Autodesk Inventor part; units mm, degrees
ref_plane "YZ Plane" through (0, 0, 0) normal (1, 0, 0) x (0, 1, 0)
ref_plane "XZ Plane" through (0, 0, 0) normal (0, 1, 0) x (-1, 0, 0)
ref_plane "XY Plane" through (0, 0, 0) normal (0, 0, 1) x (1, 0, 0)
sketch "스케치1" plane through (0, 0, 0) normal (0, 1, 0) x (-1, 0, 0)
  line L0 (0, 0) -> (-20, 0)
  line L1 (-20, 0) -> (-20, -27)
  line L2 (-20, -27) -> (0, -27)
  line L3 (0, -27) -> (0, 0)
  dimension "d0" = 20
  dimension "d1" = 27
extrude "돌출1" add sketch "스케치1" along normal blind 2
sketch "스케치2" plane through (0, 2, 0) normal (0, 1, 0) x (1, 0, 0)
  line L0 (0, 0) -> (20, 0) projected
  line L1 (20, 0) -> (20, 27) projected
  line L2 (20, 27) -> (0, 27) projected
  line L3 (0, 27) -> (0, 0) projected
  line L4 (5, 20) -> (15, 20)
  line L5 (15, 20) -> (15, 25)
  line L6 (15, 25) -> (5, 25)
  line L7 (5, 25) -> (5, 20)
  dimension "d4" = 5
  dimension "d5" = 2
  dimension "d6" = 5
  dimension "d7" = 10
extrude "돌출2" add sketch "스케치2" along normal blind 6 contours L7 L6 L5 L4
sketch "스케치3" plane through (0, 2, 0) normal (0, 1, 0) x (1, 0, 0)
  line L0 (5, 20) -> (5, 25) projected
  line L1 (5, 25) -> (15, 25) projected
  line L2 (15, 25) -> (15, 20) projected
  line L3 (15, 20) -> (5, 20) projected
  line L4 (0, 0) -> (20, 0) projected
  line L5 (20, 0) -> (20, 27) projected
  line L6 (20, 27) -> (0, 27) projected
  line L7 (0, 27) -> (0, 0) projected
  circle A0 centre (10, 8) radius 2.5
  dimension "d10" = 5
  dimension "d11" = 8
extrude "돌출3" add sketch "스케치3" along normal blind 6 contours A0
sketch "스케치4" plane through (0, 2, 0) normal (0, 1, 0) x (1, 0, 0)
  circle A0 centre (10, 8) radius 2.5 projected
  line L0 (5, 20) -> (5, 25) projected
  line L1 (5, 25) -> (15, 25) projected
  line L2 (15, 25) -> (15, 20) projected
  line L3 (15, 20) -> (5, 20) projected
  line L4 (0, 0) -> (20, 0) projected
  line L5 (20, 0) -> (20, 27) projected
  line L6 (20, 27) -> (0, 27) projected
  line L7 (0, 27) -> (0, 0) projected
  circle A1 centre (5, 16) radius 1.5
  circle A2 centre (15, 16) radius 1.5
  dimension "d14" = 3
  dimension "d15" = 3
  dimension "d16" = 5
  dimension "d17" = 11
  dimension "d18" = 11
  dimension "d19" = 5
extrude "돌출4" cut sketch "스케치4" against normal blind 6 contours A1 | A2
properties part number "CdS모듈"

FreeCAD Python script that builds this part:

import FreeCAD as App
import Part
import Sketcher
Q = App.Units.Quantity

doc = App.newDocument("Part")
params = doc.addObject("Spreadsheet::Sheet", "Params")
for row, (alias, value) in enumerate([
    ("sketch1_width", "20 mm"),
    ("sketch1_height", "27 mm"),
    ("pad1_length", "2 mm"),
    ("sketch2_width", "10 mm"),
    ("sketch2_height", "5 mm"),
    ("pad2_length", "6 mm"),
    ("sketch3_diameter", "5 mm"),
    ("pad3_length", "6 mm"),
    ("sketch4_diameter", "3 mm"),
    ("pocket1_length", "6 mm"),
], start=1):
    params.set(f"A{row}", alias)
    params.set(f"B{row}", "=" + value)
    params.setAlias(f"B{row}", alias)

body = doc.addObject("PartDesign::Body", "Body")

# Sketch on XZ plane
sketch1 = body.newObject("Sketcher::SketchObject", "Sketch")
sketch1.AttachmentSupport = (doc.getObject("XZ_Plane"), [""])
sketch1.MapMode = "FlatFace"
sketch1.addGeometry(Part.LineSegment(App.Vector(0, -27, 0), App.Vector(0, 0, 0)), False)
sketch1.addGeometry(Part.LineSegment(App.Vector(0, 0, 0), App.Vector(20, 0, 0)), False)
sketch1.addGeometry(Part.LineSegment(App.Vector(20, 0, 0), App.Vector(20, -27, 0)), False)
sketch1.addGeometry(Part.LineSegment(App.Vector(20, -27, 0), App.Vector(0, -27, 0)), False)
sketch1.addConstraint(Sketcher.Constraint("Coincident", 0, 2, 1, 1))
sketch1.addConstraint(Sketcher.Constraint("Coincident", 1, 2, 2, 1))
sketch1.addConstraint(Sketcher.Constraint("Coincident", 2, 2, 3, 1))
sketch1.addConstraint(Sketcher.Constraint("Coincident", 3, 2, 0, 1))
sketch1.addConstraint(Sketcher.Constraint("Vertical", 0))
sketch1.addConstraint(Sketcher.Constraint("Horizontal", 1))
sketch1.addConstraint(Sketcher.Constraint("Vertical", 2))
sketch1.addConstraint(Sketcher.Constraint("Horizontal", 3))
sketch1.addConstraint(Sketcher.Constraint("Coincident", 0, 2, -1, 1))
sketch1.addConstraint(Sketcher.Constraint("DistanceX", 1, 1, 1, 2, Q("20 mm")))
sketch1.addConstraint(Sketcher.Constraint("DistanceY", 0, 1, 0, 2, Q("27 mm")))
sketch1.setExpression("Constraints[9]", "Params.sketch1_width")
sketch1.setExpression("Constraints[10]", "Params.sketch1_height")
pad1 = body.newObject("PartDesign::Pad", "Pad")
pad1.Profile = sketch1
pad1.setExpression("Length", "Params.pad1_length")
pad1.Reversed = True

# Sketch on XZ plane
sketch2 = body.newObject("Sketcher::SketchObject", "Sketch001")
sketch2.AttachmentSupport = (doc.getObject("XZ_Plane"), [""])
sketch2.MapMode = "FlatFace"
sketch2.AttachmentOffset = App.Placement(App.Vector(0, 0, -2), App.Rotation())
sketch2.addGeometry(Part.LineSegment(App.Vector(5, -25, 0), App.Vector(5, -20, 0)), False)
sketch2.addGeometry(Part.LineSegment(App.Vector(5, -20, 0), App.Vector(15, -20, 0)), False)
sketch2.addGeometry(Part.LineSegment(App.Vector(15, -20, 0), App.Vector(15, -25, 0)), False)
sketch2.addGeometry(Part.LineSegment(App.Vector(15, -25, 0), App.Vector(5, -25, 0)), False)
sketch2.addConstraint(Sketcher.Constraint("Coincident", 0, 2, 1, 1))
sketch2.addConstraint(Sketcher.Constraint("Coincident", 1, 2, 2, 1))
sketch2.addConstraint(Sketcher.Constraint("Coincident", 2, 2, 3, 1))
sketch2.addConstraint(Sketcher.Constraint("Coincident", 3, 2, 0, 1))
sketch2.addConstraint(Sketcher.Constraint("Vertical", 0))
sketch2.addConstraint(Sketcher.Constraint("Horizontal", 1))
sketch2.addConstraint(Sketcher.Constraint("Vertical", 2))
sketch2.addConstraint(Sketcher.Constraint("Horizontal", 3))
sketch2.addConstraint(Sketcher.Constraint("DistanceX", 1, 1, 1, 2, Q("10 mm")))
sketch2.addConstraint(Sketcher.Constraint("DistanceY", 0, 1, 0, 2, Q("5 mm")))
sketch2.addConstraint(Sketcher.Constraint("DistanceX", -1, 1, 0, 2, Q("5 mm")))
sketch2.addConstraint(Sketcher.Constraint("DistanceY", 0, 2, -1, 1, Q("20 mm")))
sketch2.setExpression("Constraints[8]", "Params.sketch2_width")
sketch2.setExpression("Constraints[9]", "Params.sketch2_height")
pad2 = body.newObject("PartDesign::Pad", "Pad001")
pad2.Profile = sketch2
pad2.setExpression("Length", "Params.pad2_length")
pad2.Reversed = True

# Sketch on XZ plane
sketch3 = body.newObject("Sketcher::SketchObject", "Sketch002")
sketch3.AttachmentSupport = (doc.getObject("XZ_Plane"), [""])
sketch3.MapMode = "FlatFace"
sketch3.AttachmentOffset = App.Placement(App.Vector(0, 0, -2), App.Rotation())
sketch3.addGeometry(Part.Circle(App.Vector(10, -8, 0), App.Vector(0, 0, 1), 2.5), False)
sketch3.addConstraint(Sketcher.Constraint("Diameter", 0, Q("5 mm")))
sketch3.addConstraint(Sketcher.Constraint("DistanceY", 0, 3, -1, 1, Q("8 mm")))
sketch3.addConstraint(Sketcher.Constraint("DistanceX", -1, 1, 0, 3, Q("10 mm")))
sketch3.setExpression("Constraints[0]", "Params.sketch3_diameter")
pad3 = body.newObject("PartDesign::Pad", "Pad002")
pad3.Profile = sketch3
pad3.setExpression("Length", "Params.pad3_length")
pad3.Reversed = True

# Sketch on XZ plane
sketch4 = body.newObject("Sketcher::SketchObject", "Sketch003")
sketch4.AttachmentSupport = (doc.getObject("XZ_Plane"), [""])
sketch4.MapMode = "FlatFace"
sketch4.AttachmentOffset = App.Placement(App.Vector(0, 0, -2), App.Rotation())
sketch4.addGeometry(Part.Circle(App.Vector(5, -16, 0), App.Vector(0, 0, 1), 1.5), False)
sketch4.addGeometry(Part.Circle(App.Vector(15, -16, 0), App.Vector(0, 0, 1), 1.5), False)
sketch4.addConstraint(Sketcher.Constraint("Equal", 0, 1))
sketch4.addConstraint(Sketcher.Constraint("Horizontal", 0, 3, 1, 3))
sketch4.addConstraint(Sketcher.Constraint("Diameter", 0, Q("3 mm")))
sketch4.addConstraint(Sketcher.Constraint("DistanceX", -1, 1, 0, 3, Q("5 mm")))
sketch4.addConstraint(Sketcher.Constraint("DistanceY", 0, 3, -1, 1, Q("16 mm")))
sketch4.addConstraint(Sketcher.Constraint("DistanceX", -1, 1, 1, 3, Q("15 mm")))
sketch4.setExpression("Constraints[2]", "Params.sketch4_diameter")
pocket1 = body.newObject("PartDesign::Pocket", "Pocket")
pocket1.Profile = sketch4
pocket1.setExpression("Length", "Params.pocket1_length")
pocket1.Reversed = True

doc.recompute()
